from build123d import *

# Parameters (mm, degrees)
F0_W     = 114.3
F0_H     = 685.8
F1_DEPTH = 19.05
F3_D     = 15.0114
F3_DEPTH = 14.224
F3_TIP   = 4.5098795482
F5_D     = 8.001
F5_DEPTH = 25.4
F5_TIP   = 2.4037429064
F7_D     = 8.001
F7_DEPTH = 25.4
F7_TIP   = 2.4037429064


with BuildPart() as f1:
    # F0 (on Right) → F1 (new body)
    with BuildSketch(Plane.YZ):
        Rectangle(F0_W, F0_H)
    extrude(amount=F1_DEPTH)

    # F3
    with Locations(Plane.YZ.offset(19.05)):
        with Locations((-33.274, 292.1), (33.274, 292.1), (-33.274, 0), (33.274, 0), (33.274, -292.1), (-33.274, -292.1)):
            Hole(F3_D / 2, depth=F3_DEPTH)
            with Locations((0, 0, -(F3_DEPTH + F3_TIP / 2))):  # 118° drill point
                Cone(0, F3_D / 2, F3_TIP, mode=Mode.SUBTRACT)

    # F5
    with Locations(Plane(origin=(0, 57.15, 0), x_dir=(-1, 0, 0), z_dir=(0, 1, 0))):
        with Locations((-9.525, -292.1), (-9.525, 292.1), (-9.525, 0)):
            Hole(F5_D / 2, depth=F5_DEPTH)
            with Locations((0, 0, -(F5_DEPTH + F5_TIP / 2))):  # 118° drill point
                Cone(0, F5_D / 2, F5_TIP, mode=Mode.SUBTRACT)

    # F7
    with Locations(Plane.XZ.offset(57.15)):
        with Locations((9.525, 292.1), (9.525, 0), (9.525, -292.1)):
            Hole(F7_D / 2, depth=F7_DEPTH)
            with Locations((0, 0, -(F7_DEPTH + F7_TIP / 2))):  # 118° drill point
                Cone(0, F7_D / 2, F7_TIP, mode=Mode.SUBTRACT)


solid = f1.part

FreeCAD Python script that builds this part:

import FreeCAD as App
import Part
import Sketcher
from FreeCAD import Vector
Q = App.Units.Quantity

doc = App.newDocument("Part")
body = doc.addObject("PartDesign::Body", "Body")

# Sketch on YZ plane
sketch1 = body.newObject("Sketcher::SketchObject", "Sketch")
sketch1.AttachmentSupport = (doc.getObject("YZ_Plane"), [""])
sketch1.MapMode = "FlatFace"
sketch1.addGeometry(Part.LineSegment(Vector(-57.15, 342.9, 0), Vector(-57.15, -342.9, 0)), False)
sketch1.addGeometry(Part.LineSegment(Vector(-57.15, -342.9, 0), Vector(57.15, -342.9, 0)), False)
sketch1.addGeometry(Part.LineSegment(Vector(57.15, -342.9, 0), Vector(57.15, 342.9, 0)), False)
sketch1.addGeometry(Part.LineSegment(Vector(57.15, 342.9, 0), Vector(-57.15, 342.9, 0)), False)
sketch1.addConstraint(Sketcher.Constraint("Coincident", 0, 2, 1, 1))
sketch1.addConstraint(Sketcher.Constraint("Coincident", 1, 2, 2, 1))
sketch1.addConstraint(Sketcher.Constraint("Coincident", 2, 2, 3, 1))
sketch1.addConstraint(Sketcher.Constraint("Coincident", 3, 2, 0, 1))
sketch1.addConstraint(Sketcher.Constraint("Vertical", 0))
sketch1.addConstraint(Sketcher.Constraint("Horizontal", 1))
sketch1.addConstraint(Sketcher.Constraint("Vertical", 2))
sketch1.addConstraint(Sketcher.Constraint("Horizontal", 3))
sketch1.addConstraint(Sketcher.Constraint("Symmetric", 0, 2, 2, 2, -1, 1))
sketch1.addConstraint(Sketcher.Constraint("DistanceY", 0, 2, 0, 1, Q("27 in")))
sketch1.addConstraint(Sketcher.Constraint("DistanceX", 1, 1, 1, 2, Q("4.5 in")))
pad1 = body.newObject("PartDesign::Pad", "Pad")
pad1.Profile = sketch1
pad1.Length = Q("0.75 in")

# Sketch on YZ plane
sketch2 = body.newObject("Sketcher::SketchObject", "Sketch001")
sketch2.AttachmentSupport = (doc.getObject("YZ_Plane"), [""])
sketch2.MapMode = "FlatFace"
sketch2.AttachmentOffset = App.Placement(Vector(0, 0, 0.75 * 25.4), App.Rotation())
sketch2.addGeometry(Part.Circle(Vector(-33.274, 292.1, 0), Vector(0, 0, 1), 7.5057), False)
sketch2.addGeometry(Part.Circle(Vector(33.274, 292.1, 0), Vector(0, 0, 1), 7.5057), False)
sketch2.addGeometry(Part.Circle(Vector(-33.274, 0, 0), Vector(0, 0, 1), 7.5057), False)
sketch2.addGeometry(Part.Circle(Vector(33.274, 0, 0), Vector(0, 0, 1), 7.5057), False)
sketch2.addGeometry(Part.Circle(Vector(33.274, -292.1, 0), Vector(0, 0, 1), 7.5057), False)
sketch2.addGeometry(Part.Circle(Vector(-33.274, -292.1, 0), Vector(0, 0, 1), 7.5057), False)
sketch2.addConstraint(Sketcher.Constraint("Equal", 0, 1))
sketch2.addConstraint(Sketcher.Constraint("Equal", 1, 2))
sketch2.addConstraint(Sketcher.Constraint("Equal", 2, 3))
sketch2.addConstraint(Sketcher.Constraint("Equal", 3, 4))
sketch2.addConstraint(Sketcher.Constraint("Equal", 4, 5))
sketch2.addConstraint(Sketcher.Constraint("Symmetric", 2, 3, 3, 3, -1, 1))
sketch2.addConstraint(Sketcher.Constraint("Symmetric", 0, 3, 4, 3, -1, 1))
sketch2.addConstraint(Sketcher.Constraint("Symmetric", 1, 3, 5, 3, -1, 1))
sketch2.addConstraint(Sketcher.Constraint("Symmetric", 0, 3, 1, 3, -2))
sketch2.addConstraint(Sketcher.Constraint("PointOnObject", 2, 3, -1))
sketch2.addConstraint(Sketcher.Constraint("Vertical", 0, 3, 2, 3))
sketch2.addConstraint(Sketcher.Constraint("Diameter", 0, Q("0.591 in")))
sketch2.addConstraint(Sketcher.Constraint("DistanceY", 4, 3, 1, 3, Q("23 in")))
sketch2.addConstraint(Sketcher.Constraint("DistanceX", 0, 3, -1, 1, Q("1.31 in")))
doc.recompute()
hole = body.newObject("PartDesign::Hole", "Hole")
hole.Profile = sketch2
hole.ThreadType = "None"
hole.Diameter = Q("0.591 in")
hole.DepthType = "Dimension"
hole.Depth = Q("0.56 in")
hole.DrillPoint = "Angled"
hole.DrillPointAngle = 118

# Sketch on XZ plane
sketch3 = body.newObject("Sketcher::SketchObject", "Sketch002")
sketch3.AttachmentSupport = (doc.getObject("XZ_Plane"), [""])
sketch3.MapMode = "FlatFace"
sketch3.AttachmentOffset = App.Placement(Vector(0, 0, -2.25 * 25.4), App.Rotation())
sketch3.addGeometry(Part.Circle(Vector(9.525, -292.1, 0), Vector(0, 0, 1), 4.0005), False)
sketch3.addGeometry(Part.Circle(Vector(9.525, 292.1, 0), Vector(0, 0, 1), 4.0005), False)
sketch3.addGeometry(Part.Circle(Vector(9.525, 0, 0), Vector(0, 0, 1), 4.0005), False)
sketch3.addConstraint(Sketcher.Constraint("Equal", 0, 1))
sketch3.addConstraint(Sketcher.Constraint("Equal", 1, 2))
sketch3.addConstraint(Sketcher.Constraint("Symmetric", 0, 3, 1, 3, -1))
sketch3.addConstraint(Sketcher.Constraint("PointOnObject", 2, 3, -1))
sketch3.addConstraint(Sketcher.Constraint("Vertical", 1, 3, 2, 3))
sketch3.addConstraint(Sketcher.Constraint("Diameter", 0, Q("0.315 in")))
sketch3.addConstraint(Sketcher.Constraint("DistanceY", 0, 3, 1, 3, Q("23 in")))
sketch3.addConstraint(Sketcher.Constraint("DistanceX", -1, 1, 0, 3, Q("0.375 in")))
doc.recompute()
hole2 = body.newObject("PartDesign::Hole", "Hole001")
hole2.Profile = sketch3
hole2.ThreadType = "None"
hole2.Diameter = Q("0.315 in")
hole2.DepthType = "Dimension"
hole2.Depth = Q("1 in")
hole2.DrillPoint = "Angled"
hole2.DrillPointAngle = 118
hole2.Reversed = True

# Sketch on XZ plane
sketch4 = body.newObject("Sketcher::SketchObject", "Sketch003")
sketch4.AttachmentSupport = (doc.getObject("XZ_Plane"), [""])
sketch4.MapMode = "FlatFace"
sketch4.AttachmentOffset = App.Placement(Vector(0, 0, 2.25 * 25.4), App.Rotation())
sketch4.addGeometry(Part.Circle(Vector(9.525, 292.1, 0), Vector(0, 0, 1), 4.0005), False)
sketch4.addGeometry(Part.Circle(Vector(9.525, 0, 0), Vector(0, 0, 1), 4.0005), False)
sketch4.addGeometry(Part.Circle(Vector(9.525, -292.1, 0), Vector(0, 0, 1), 4.0005), False)
sketch4.addConstraint(Sketcher.Constraint("Equal", 0, 1))
sketch4.addConstraint(Sketcher.Constraint("Equal", 1, 2))
sketch4.addConstraint(Sketcher.Constraint("Symmetric", 0, 3, 2, 3, -1))
sketch4.addConstraint(Sketcher.Constraint("PointOnObject", 1, 3, -1))
sketch4.addConstraint(Sketcher.Constraint("Vertical", 0, 3, 1, 3))
sketch4.addConstraint(Sketcher.Constraint("Diameter", 0, Q("0.315 in")))
sketch4.addConstraint(Sketcher.Constraint("DistanceY", 2, 3, 0, 3, Q("23 in")))
sketch4.addConstraint(Sketcher.Constraint("DistanceX", -1, 1, 0, 3, Q("0.375 in")))
doc.recompute()
hole3 = body.newObject("PartDesign::Hole", "Hole002")
hole3.Profile = sketch4
hole3.ThreadType = "None"
hole3.Diameter = Q("0.315 in")
hole3.DepthType = "Dimension"
hole3.Depth = Q("1 in")
hole3.DrillPoint = "Angled"
hole3.DrillPointAngle = 118

doc.recompute()
